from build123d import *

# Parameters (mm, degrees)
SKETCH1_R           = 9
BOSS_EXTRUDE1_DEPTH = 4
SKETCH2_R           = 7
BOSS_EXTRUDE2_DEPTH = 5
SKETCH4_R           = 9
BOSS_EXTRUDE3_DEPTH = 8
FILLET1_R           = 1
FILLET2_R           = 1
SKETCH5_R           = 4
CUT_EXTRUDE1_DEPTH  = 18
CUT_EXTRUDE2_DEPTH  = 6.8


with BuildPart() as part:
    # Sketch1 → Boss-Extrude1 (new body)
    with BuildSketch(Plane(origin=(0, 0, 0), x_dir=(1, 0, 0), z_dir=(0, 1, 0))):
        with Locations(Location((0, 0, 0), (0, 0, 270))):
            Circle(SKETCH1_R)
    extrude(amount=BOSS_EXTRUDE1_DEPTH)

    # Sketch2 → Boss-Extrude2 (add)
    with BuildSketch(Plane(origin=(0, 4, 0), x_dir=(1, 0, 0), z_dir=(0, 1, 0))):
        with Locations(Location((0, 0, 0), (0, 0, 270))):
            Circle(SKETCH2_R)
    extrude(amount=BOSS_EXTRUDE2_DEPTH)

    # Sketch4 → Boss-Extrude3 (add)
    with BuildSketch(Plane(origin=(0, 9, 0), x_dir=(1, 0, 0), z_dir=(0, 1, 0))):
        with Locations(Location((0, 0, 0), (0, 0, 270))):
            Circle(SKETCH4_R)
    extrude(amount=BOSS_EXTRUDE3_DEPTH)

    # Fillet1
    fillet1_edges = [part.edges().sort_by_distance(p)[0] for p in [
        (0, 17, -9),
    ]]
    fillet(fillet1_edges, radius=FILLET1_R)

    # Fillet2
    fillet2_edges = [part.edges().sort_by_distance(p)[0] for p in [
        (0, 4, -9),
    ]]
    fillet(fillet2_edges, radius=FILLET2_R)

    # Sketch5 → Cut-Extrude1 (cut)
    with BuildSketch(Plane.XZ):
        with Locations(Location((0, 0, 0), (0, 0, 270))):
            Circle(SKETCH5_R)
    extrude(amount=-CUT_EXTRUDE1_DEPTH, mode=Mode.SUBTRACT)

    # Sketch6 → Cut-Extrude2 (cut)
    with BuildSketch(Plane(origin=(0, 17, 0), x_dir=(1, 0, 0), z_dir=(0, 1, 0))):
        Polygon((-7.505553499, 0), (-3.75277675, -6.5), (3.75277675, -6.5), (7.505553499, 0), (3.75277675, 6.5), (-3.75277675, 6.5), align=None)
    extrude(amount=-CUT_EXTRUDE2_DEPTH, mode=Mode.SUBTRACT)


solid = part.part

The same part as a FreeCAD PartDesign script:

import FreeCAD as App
import Part
import Sketcher
Q = App.Units.Quantity


def edges_at(feature, points):
    """Names of the edges that pass closest to the given points."""
    edges = feature.Shape.Edges
    near = lambda p: min(range(len(edges)), key=lambda i: edges[i].distToShape(Part.Vertex(*p))[0])
    return sorted({f"Edge{near(p) + 1}" for p in points})

doc = App.newDocument("Part")
body = doc.addObject("PartDesign::Body", "Body")

sketch1 = body.newObject("Sketcher::SketchObject", "Sketch")
sketch1.AttachmentSupport = (doc.getObject("XZ_Plane"), [""])
sketch1.MapMode = "FlatFace"
sketch1.addGeometry(Part.Circle(App.Vector(0, 0, 0), App.Vector(0, 0, 1), 9), False)
sketch1.addConstraint(Sketcher.Constraint("Coincident", 0, 3, -1, 1))
sketch1.addConstraint(Sketcher.Constraint("Diameter", 0, Q("18 mm")))
pad1 = body.newObject("PartDesign::Pad", "Pad")
pad1.Profile = sketch1
pad1.Length = 4
pad1.Reversed = True

sketch2 = body.newObject("Sketcher::SketchObject", "Sketch001")
sketch2.AttachmentSupport = (doc.getObject("XZ_Plane"), [""])
sketch2.MapMode = "FlatFace"
sketch2.AttachmentOffset = App.Placement(App.Vector(0, 0, -4), App.Rotation())
sketch2.addGeometry(Part.Circle(App.Vector(0, 0, 0), App.Vector(0, 0, 1), 7), False)
sketch2.addConstraint(Sketcher.Constraint("Coincident", 0, 3, -1, 1))
sketch2.addConstraint(Sketcher.Constraint("Diameter", 0, Q("14 mm")))
pad2 = body.newObject("PartDesign::Pad", "Pad001")
pad2.Profile = sketch2
pad2.Length = 5
pad2.Reversed = True

sketch3 = body.newObject("Sketcher::SketchObject", "Sketch002")
sketch3.AttachmentSupport = (doc.getObject("XZ_Plane"), [""])
sketch3.MapMode = "FlatFace"
sketch3.AttachmentOffset = App.Placement(App.Vector(0, 0, -9), App.Rotation())
sketch3.addGeometry(Part.Circle(App.Vector(0, 0, 0), App.Vector(0, 0, 1), 9), False)
sketch3.addConstraint(Sketcher.Constraint("Coincident", 0, 3, -1, 1))
sketch3.addConstraint(Sketcher.Constraint("Diameter", 0, Q("18 mm")))
pad3 = body.newObject("PartDesign::Pad", "Pad002")
pad3.Profile = sketch3
pad3.Length = 8
pad3.Reversed = True
doc.recompute()

fillet = body.newObject("PartDesign::Fillet", "Fillet")
fillet.Base = (pad3, edges_at(pad3, [(0, 17, -9)]))
fillet.Radius = 1
doc.recompute()

fillet2 = body.newObject("PartDesign::Fillet", "Fillet001")
fillet2.Base = (fillet, edges_at(fillet, [(0, 4, -9)]))
fillet2.Radius = 1

sketch4 = body.newObject("Sketcher::SketchObject", "Sketch003")
sketch4.AttachmentSupport = (doc.getObject("XZ_Plane"), [""])
sketch4.MapMode = "FlatFace"
sketch4.addGeometry(Part.Circle(App.Vector(0, 0, 0), App.Vector(0, 0, 1), 4), False)
sketch4.addConstraint(Sketcher.Constraint("Coincident", 0, 3, -1, 1))
sketch4.addConstraint(Sketcher.Constraint("Diameter", 0, Q("8 mm")))
pocket1 = body.newObject("PartDesign::Pocket", "Pocket")
pocket1.Profile = sketch4
pocket1.Length = 18

sketch5 = body.newObject("Sketcher::SketchObject", "Sketch004")
sketch5.AttachmentSupport = (doc.getObject("XZ_Plane"), [""])
sketch5.MapMode = "FlatFace"
sketch5.AttachmentOffset = App.Placement(App.Vector(0, 0, -17), App.Rotation())
sketch5.addGeometry(Part.LineSegment(App.Vector(-7.505553, 0, 0), App.Vector(-3.752777, 6.5, 0)), False)
sketch5.addGeometry(Part.LineSegment(App.Vector(-3.752777, 6.5, 0), App.Vector(3.752777, 6.5, 0)), False)
sketch5.addGeometry(Part.LineSegment(App.Vector(3.752777, 6.5, 0), App.Vector(7.505553, 0, 0)), False)
sketch5.addGeometry(Part.LineSegment(App.Vector(7.505553, 0, 0), App.Vector(3.752777, -6.5, 0)), False)
sketch5.addGeometry(Part.LineSegment(App.Vector(3.752777, -6.5, 0), App.Vector(-3.752777, -6.5, 0)), False)
sketch5.addGeometry(Part.LineSegment(App.Vector(-3.752777, -6.5, 0), App.Vector(-7.505553, 0, 0)), False)
sketch5.addConstraint(Sketcher.Constraint("Coincident", 0, 2, 1, 1))
sketch5.addConstraint(Sketcher.Constraint("Coincident", 1, 2, 2, 1))
sketch5.addConstraint(Sketcher.Constraint("Coincident", 2, 2, 3, 1))
sketch5.addConstraint(Sketcher.Constraint("Coincident", 3, 2, 4, 1))
sketch5.addConstraint(Sketcher.Constraint("Coincident", 4, 2, 5, 1))
sketch5.addConstraint(Sketcher.Constraint("Coincident", 5, 2, 0, 1))
sketch5.addConstraint(Sketcher.Constraint("Horizontal", 1))
sketch5.addConstraint(Sketcher.Constraint("Horizontal", 4))
sketch5.addConstraint(Sketcher.Constraint("Symmetric", 0, 2, 3, 2, -1, 1))
sketch5.addConstraint(Sketcher.Constraint("Symmetric", 2, 2, 5, 2, -1, 1))
sketch5.addConstraint(Sketcher.Constraint("PointOnObject", 2, 2, -1))
sketch5.addConstraint(Sketcher.Constraint("Parallel", 2, 5))
sketch5.addConstraint(Sketcher.Constraint("Vertical", 1, 2, 3, 2))
sketch5.addConstraint(Sketcher.Constraint("Angle", 0, Q("60 deg")))
sketch5.addConstraint(Sketcher.Constraint("DistanceY", 3, 2, 1, 2, Q("13 mm")))
sketch5.addConstraint(Sketcher.Constraint("DistanceX", 1, 1, 1, 2, Q("7.505554 mm")))
pocket2 = body.newObject("PartDesign::Pocket", "Pocket001")
pocket2.Profile = sketch5
pocket2.Length = 6.8
pocket2.Reversed = True

doc.recompute()
